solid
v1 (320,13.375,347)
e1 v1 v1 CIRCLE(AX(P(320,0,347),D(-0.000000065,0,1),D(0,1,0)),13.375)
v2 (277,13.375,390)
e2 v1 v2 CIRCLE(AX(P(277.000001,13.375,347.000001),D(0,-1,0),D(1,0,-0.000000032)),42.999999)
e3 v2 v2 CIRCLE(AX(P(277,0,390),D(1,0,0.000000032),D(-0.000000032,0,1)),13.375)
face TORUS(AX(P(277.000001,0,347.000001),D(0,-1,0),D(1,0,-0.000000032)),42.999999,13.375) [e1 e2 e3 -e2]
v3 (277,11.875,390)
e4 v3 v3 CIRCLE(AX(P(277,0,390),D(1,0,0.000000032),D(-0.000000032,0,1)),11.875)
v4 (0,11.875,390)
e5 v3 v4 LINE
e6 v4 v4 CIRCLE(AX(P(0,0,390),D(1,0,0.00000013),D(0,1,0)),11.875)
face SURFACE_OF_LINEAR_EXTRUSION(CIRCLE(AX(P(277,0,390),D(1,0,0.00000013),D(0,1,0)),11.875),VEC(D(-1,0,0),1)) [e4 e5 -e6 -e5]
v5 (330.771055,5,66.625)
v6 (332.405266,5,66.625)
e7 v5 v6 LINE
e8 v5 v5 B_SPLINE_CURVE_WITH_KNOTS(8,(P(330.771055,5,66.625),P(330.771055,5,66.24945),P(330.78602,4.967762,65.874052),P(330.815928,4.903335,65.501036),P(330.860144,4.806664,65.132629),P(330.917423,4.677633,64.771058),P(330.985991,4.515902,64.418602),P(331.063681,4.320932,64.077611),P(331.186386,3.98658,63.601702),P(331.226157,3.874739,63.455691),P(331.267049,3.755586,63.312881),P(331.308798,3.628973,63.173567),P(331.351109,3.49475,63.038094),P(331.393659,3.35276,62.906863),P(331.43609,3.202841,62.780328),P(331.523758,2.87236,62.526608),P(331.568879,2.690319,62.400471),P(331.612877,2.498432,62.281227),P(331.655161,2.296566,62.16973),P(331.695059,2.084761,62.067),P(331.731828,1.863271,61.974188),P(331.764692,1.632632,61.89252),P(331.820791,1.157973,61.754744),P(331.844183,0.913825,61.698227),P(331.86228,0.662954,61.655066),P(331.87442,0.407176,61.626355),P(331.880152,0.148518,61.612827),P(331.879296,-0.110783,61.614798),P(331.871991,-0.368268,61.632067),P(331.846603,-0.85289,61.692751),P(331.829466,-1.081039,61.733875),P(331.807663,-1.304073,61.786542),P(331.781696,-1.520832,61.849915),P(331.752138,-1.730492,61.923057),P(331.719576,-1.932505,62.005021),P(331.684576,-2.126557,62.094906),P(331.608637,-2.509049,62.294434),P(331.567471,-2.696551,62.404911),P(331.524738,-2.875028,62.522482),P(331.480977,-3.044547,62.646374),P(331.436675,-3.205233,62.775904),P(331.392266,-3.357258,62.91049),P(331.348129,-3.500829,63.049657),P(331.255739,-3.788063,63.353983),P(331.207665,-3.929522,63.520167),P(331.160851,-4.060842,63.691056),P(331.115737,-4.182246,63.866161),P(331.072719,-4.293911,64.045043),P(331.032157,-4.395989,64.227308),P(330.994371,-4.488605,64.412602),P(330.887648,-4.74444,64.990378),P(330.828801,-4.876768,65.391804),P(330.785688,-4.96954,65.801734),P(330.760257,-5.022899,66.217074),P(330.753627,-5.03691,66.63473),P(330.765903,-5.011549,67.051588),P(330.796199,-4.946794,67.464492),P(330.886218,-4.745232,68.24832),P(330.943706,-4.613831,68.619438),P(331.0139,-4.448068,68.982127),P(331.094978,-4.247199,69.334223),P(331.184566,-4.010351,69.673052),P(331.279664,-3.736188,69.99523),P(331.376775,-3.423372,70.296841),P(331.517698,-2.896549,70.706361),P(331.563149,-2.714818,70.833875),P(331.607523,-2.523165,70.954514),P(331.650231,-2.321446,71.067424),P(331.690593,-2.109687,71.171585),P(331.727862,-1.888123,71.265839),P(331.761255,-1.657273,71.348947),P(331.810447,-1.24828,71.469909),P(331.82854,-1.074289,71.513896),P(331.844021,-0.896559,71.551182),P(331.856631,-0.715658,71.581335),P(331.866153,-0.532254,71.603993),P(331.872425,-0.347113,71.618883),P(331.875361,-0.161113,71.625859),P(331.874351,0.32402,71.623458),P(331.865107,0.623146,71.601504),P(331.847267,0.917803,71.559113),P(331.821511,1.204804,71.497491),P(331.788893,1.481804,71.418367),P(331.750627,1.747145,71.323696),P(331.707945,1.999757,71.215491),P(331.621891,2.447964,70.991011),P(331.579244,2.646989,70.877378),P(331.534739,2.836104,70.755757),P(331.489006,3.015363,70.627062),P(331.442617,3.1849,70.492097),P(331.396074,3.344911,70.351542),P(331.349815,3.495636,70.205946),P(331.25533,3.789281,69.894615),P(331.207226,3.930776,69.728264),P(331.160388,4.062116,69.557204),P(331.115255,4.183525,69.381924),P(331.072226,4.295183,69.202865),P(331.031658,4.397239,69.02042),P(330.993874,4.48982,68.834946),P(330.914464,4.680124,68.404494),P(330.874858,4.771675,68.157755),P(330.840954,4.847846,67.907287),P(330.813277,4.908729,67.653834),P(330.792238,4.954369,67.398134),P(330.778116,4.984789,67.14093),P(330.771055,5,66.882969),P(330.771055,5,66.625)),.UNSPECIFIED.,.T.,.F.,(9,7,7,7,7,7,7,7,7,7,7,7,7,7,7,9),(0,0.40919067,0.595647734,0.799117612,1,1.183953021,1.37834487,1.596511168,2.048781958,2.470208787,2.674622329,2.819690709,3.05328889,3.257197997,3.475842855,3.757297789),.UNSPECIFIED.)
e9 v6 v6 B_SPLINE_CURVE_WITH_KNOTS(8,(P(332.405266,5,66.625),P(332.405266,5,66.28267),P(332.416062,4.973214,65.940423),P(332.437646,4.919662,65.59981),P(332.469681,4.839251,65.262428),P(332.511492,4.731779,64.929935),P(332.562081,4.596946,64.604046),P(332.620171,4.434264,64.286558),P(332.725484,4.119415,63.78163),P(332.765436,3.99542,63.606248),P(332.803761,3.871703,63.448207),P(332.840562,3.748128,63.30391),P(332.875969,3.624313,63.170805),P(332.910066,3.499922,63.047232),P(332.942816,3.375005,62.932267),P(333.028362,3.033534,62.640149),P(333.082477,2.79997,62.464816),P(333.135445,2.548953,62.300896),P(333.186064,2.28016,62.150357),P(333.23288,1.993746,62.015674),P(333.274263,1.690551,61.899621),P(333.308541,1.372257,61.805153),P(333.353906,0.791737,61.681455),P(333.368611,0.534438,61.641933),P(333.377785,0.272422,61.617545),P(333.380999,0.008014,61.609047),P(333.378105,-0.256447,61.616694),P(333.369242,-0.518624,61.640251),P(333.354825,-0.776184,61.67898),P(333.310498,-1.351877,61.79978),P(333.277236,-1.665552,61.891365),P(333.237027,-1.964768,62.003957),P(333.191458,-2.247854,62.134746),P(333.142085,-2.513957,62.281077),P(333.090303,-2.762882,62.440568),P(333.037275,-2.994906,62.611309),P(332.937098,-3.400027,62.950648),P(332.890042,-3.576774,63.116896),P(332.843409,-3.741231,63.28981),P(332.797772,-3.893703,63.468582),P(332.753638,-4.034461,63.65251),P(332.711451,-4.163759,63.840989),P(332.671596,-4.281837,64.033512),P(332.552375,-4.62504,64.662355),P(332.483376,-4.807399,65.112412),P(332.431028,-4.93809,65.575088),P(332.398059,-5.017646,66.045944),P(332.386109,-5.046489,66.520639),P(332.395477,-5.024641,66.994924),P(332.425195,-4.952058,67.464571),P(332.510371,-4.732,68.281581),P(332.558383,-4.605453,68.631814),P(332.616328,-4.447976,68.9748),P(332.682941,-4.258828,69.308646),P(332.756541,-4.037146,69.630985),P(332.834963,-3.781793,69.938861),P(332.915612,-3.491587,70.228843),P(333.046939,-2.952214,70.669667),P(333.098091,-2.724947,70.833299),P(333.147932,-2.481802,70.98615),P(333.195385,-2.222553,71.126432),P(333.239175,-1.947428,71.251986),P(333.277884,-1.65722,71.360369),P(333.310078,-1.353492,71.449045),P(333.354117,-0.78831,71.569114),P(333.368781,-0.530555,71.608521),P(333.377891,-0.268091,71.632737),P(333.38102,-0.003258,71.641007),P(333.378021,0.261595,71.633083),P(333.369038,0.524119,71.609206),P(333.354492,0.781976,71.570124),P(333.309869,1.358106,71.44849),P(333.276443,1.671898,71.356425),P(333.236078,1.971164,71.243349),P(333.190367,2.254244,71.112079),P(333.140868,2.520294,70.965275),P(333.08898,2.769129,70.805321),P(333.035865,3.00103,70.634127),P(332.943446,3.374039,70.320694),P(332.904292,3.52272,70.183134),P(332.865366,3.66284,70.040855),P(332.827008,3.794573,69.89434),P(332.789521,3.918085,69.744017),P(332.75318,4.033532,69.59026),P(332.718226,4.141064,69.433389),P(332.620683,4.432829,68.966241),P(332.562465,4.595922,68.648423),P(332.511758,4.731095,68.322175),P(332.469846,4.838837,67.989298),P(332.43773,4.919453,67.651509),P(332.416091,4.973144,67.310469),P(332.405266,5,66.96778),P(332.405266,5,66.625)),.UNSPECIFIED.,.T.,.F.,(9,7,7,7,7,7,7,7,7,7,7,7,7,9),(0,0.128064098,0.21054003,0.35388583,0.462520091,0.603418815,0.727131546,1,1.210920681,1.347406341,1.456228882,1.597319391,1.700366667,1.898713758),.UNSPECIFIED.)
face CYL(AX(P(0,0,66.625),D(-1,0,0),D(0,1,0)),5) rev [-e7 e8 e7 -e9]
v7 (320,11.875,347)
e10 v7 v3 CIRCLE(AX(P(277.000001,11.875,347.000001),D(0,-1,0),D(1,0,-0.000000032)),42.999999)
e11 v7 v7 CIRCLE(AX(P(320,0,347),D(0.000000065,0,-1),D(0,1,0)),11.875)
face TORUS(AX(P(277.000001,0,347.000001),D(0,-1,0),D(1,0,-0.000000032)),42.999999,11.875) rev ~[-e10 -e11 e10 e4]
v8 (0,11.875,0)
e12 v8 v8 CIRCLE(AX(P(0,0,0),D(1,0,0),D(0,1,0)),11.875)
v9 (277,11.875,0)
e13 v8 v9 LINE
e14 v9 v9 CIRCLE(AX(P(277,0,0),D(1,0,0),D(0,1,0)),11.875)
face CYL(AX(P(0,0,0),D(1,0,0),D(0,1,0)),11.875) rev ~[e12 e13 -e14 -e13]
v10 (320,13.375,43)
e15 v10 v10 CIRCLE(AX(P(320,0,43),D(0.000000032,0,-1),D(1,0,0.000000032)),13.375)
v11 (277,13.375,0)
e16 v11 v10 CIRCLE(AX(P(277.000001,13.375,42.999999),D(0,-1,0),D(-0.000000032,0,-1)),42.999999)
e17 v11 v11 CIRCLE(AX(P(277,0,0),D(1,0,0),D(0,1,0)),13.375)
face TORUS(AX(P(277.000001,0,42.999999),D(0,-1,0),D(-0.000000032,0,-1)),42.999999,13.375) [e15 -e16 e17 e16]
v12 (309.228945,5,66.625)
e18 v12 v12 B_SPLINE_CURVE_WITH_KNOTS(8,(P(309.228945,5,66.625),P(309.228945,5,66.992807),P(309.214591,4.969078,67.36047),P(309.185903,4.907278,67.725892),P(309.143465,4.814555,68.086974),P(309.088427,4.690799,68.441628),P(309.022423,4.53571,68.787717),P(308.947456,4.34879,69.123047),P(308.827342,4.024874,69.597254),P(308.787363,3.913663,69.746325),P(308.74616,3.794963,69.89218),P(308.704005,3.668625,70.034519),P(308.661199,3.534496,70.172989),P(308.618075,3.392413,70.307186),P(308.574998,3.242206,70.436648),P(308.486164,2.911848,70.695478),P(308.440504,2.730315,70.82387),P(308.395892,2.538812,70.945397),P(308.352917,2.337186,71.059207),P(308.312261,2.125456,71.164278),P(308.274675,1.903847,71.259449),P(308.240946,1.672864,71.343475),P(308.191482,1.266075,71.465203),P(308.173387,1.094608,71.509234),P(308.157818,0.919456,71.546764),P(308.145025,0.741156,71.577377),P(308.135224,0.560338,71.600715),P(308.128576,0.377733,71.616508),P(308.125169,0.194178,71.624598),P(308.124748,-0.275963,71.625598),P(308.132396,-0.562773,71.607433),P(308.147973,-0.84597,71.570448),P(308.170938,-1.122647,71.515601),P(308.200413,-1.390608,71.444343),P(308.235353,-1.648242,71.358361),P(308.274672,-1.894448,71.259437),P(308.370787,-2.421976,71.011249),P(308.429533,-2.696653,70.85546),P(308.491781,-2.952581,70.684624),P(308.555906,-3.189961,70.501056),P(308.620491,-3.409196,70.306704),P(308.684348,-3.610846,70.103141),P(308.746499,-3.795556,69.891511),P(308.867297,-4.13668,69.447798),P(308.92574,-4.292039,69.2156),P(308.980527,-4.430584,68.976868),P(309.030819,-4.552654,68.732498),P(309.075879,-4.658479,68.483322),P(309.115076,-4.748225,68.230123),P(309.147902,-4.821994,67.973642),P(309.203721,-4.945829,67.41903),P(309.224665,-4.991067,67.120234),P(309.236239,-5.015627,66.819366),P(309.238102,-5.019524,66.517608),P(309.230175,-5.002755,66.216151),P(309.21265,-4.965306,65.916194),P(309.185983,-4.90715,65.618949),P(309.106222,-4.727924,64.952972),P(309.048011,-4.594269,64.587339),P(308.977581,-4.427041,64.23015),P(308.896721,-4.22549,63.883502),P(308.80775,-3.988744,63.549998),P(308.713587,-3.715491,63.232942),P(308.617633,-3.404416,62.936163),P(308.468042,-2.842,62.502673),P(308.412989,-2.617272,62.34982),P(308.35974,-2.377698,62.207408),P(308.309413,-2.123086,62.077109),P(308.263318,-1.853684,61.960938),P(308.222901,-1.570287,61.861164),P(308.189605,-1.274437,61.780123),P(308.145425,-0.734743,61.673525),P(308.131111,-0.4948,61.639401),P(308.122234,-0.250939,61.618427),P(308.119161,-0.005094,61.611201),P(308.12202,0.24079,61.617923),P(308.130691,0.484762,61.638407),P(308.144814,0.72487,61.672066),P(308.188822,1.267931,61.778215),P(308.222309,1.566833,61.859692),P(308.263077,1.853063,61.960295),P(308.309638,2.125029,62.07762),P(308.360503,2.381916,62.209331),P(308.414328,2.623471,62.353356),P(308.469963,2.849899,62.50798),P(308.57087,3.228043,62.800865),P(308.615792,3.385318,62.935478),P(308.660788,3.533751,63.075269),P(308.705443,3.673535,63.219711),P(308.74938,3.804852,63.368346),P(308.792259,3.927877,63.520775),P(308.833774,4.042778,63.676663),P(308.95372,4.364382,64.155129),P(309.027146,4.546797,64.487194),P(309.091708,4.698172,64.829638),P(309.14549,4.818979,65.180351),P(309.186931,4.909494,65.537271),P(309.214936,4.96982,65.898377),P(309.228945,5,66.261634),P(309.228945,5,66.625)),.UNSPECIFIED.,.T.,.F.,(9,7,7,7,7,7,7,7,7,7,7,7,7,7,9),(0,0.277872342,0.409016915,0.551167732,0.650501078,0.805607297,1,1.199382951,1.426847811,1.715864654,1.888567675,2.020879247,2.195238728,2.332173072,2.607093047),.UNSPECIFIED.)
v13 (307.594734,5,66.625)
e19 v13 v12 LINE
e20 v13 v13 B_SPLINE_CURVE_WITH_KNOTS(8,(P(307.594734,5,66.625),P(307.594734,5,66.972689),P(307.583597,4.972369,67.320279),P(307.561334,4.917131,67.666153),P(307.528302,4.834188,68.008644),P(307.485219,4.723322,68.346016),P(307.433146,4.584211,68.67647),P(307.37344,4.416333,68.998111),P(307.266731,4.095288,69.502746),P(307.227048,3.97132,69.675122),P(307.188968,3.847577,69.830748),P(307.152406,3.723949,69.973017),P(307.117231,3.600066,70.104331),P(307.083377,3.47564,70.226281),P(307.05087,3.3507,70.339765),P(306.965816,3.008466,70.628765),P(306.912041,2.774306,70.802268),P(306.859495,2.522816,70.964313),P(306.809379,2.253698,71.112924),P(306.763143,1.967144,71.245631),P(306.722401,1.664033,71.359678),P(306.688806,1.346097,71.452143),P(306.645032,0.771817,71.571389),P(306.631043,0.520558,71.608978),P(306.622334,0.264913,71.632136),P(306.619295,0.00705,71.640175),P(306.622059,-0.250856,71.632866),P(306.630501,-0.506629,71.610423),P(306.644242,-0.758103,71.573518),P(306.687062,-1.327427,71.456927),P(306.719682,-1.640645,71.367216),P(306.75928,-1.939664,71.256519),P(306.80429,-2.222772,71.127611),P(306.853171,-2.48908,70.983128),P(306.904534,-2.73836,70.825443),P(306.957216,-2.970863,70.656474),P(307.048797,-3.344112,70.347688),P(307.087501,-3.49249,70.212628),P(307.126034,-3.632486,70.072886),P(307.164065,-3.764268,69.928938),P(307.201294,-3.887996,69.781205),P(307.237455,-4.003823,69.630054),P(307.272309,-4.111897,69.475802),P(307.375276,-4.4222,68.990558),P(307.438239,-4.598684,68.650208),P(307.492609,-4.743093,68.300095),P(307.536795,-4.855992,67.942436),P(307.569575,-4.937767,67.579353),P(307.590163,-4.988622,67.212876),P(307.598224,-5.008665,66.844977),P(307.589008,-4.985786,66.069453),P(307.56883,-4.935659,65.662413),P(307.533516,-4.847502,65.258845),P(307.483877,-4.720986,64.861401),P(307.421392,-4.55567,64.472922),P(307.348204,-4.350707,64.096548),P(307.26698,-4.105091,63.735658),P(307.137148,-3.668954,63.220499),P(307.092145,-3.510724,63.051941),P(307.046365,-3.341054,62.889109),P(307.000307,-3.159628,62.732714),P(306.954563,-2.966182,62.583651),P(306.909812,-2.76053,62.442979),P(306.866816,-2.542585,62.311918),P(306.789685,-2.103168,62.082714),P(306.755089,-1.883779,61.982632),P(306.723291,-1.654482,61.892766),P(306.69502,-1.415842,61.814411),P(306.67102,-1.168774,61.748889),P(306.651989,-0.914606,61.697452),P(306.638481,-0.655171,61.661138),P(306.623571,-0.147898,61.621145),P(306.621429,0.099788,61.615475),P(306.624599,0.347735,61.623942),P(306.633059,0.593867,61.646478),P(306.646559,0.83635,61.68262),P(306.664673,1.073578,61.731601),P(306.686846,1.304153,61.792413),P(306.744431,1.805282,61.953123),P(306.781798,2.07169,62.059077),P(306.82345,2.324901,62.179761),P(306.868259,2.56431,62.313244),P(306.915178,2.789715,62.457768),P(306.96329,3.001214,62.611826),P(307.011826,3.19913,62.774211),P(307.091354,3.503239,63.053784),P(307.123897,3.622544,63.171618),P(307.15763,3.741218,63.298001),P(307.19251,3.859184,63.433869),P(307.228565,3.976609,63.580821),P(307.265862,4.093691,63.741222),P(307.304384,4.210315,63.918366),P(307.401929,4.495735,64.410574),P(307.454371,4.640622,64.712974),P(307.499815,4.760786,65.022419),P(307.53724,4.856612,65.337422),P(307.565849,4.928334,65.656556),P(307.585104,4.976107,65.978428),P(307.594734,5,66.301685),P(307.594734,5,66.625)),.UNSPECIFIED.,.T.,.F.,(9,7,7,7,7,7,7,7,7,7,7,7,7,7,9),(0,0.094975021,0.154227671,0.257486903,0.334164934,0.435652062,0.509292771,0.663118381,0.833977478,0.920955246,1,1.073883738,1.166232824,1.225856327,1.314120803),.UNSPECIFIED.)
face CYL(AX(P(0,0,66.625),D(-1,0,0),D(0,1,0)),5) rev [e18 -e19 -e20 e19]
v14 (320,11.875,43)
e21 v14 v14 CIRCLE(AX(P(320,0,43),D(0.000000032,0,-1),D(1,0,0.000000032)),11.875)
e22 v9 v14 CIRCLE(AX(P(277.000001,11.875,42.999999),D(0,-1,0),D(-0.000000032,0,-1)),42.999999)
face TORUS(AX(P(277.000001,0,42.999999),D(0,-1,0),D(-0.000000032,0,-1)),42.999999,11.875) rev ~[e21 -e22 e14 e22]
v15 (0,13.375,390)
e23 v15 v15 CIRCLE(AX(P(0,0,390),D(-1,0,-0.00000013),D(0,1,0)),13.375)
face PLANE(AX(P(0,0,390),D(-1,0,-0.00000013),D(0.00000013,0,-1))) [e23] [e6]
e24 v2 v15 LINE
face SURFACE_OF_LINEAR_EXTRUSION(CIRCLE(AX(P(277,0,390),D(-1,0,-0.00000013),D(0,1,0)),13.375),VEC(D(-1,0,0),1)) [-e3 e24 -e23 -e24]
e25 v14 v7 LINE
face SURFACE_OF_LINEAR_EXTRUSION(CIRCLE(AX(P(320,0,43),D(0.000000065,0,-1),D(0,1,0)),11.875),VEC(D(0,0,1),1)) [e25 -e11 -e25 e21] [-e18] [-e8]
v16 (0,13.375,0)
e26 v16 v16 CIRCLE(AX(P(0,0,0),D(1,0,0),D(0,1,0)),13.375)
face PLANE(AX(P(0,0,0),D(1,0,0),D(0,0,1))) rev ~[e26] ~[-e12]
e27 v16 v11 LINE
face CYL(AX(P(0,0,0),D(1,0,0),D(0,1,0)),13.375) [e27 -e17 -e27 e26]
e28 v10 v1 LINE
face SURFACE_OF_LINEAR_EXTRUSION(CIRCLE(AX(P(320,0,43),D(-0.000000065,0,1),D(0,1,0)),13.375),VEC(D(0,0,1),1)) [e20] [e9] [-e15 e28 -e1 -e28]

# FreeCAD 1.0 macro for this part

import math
import FreeCAD as App
import Part
import Sketcher
from FreeCAD import Vector

doc = App.newDocument("Part")
params = doc.addObject("Spreadsheet::Sheet", "Params")
for row, (alias, value) in enumerate([
    ("sketch1_diameter", "26.75 mm"),
    ("sketch1_diameter2", "23.75 mm"),
    ("sketch2_radius", "42.999999 mm"),
    ("sketch2_width", "277 mm"),
    ("sketch2_height", "304 mm"),
    ("sketch3_diameter", "10 mm"),
], start=1):
    params.set(f"A{row}", alias)
    params.set(f"B{row}", "=" + value)
    params.setAlias(f"B{row}", alias)

body = doc.addObject("PartDesign::Body", "Body")

# Sketch on YZ plane
sketch1 = body.newObject("Sketcher::SketchObject", "Sketch")
sketch1.AttachmentSupport = (doc.getObject("YZ_Plane"), [""])
sketch1.MapMode = "FlatFace"
sketch1.addGeometry([
    Part.Circle(Vector(0, 0, 0), Vector(0, 0, 1), 13),
    Part.Circle(Vector(0, 0, 0), Vector(0, 0, 1), 12),
], False)
sketch1.addConstraint([
    Sketcher.Constraint("Coincident", 0, 3, -1, 1),
    Sketcher.Constraint("Coincident", 1, 3, -1, 1),
    Sketcher.Constraint("Diameter", 0, 26.75),
    Sketcher.Constraint("Diameter", 1, 23.75),
])
sketch1.setExpression("Constraints[2]", "Params.sketch1_diameter")
sketch1.setExpression("Constraints[3]", "Params.sketch1_diameter2")

# Sketch on XZ plane
sketch2 = body.newObject("Sketcher::SketchObject", "Sketch001")
sketch2.AttachmentSupport = (doc.getObject("XZ_Plane"), [""])
sketch2.MapMode = "FlatFace"
sketch2.addGeometry([
    Part.LineSegment(Vector(0, 0, 0), Vector(277, 0, 0)),  # 0
    Part.ArcOfCircle(Part.Circle(Vector(277, 43, 0), Vector(0, 0, 1), 43), math.radians(-90), math.radians(0)),  # 1
    Part.LineSegment(Vector(320, 43, 0), Vector(320, 347, 0)),  # 2
    Part.ArcOfCircle(Part.Circle(Vector(277, 347, 0), Vector(0, 0, 1), 43), math.radians(0), math.radians(90)),  # 3
    Part.LineSegment(Vector(277, 390, 0), Vector(0, 390, 0)),  # 4
], False)
sketch2.addConstraint([
    Sketcher.Constraint("Tangent", 0, 2, 1, 1),
    Sketcher.Constraint("Tangent", 1, 2, 2, 1),
    Sketcher.Constraint("Tangent", 2, 2, 3, 1),
    Sketcher.Constraint("Tangent", 3, 2, 4, 1),
    Sketcher.Constraint("Horizontal", 0),
    Sketcher.Constraint("Vertical", 2),
    Sketcher.Constraint("Horizontal", 4),
    Sketcher.Constraint("Coincident", 0, 1, -1, 1),
    Sketcher.Constraint("Equal", 1, 3),
    Sketcher.Constraint("PointOnObject", 4, 2, -2),
    Sketcher.Constraint("Radius", 1, 42.999999),
    Sketcher.Constraint("DistanceX", 0, 1, 0, 2, 277.0),
    Sketcher.Constraint("DistanceY", 2, 1, 2, 2, 304.0),
])
sketch2.setExpression("Constraints[10]", "Params.sketch2_radius")
sketch2.setExpression("Constraints[11]", "Params.sketch2_width")
sketch2.setExpression("Constraints[12]", "Params.sketch2_height")
doc.recompute()

additivepipe = body.newObject("PartDesign::AdditivePipe", "AdditivePipe")
additivepipe.Profile = sketch1
additivepipe.Spine = (sketch2, ["Edge1", "Edge2", "Edge3", "Edge4", "Edge5"])

# Sketch on YZ plane
sketch3 = body.newObject("Sketcher::SketchObject", "Sketch002")
sketch3.AttachmentSupport = (doc.getObject("YZ_Plane"), [""])
sketch3.MapMode = "FlatFace"
sketch3.addGeometry(Part.Circle(Vector(0, 67, 0), Vector(0, 0, 1), 5), False)
sketch3.addConstraint([
    Sketcher.Constraint("PointOnObject", 0, 3, -2),
    Sketcher.Constraint("Diameter", 0, 10.0),
    Sketcher.Constraint("DistanceY", -1, 1, 0, 3, 66.625),
])
sketch3.setExpression("Constraints[1]", "Params.sketch3_diameter")
pocket1 = body.newObject("PartDesign::Pocket", "Pocket")
pocket1.Profile = sketch3
pocket1.Type = "ThroughAll"
pocket1.Reversed = True

doc.recompute()
